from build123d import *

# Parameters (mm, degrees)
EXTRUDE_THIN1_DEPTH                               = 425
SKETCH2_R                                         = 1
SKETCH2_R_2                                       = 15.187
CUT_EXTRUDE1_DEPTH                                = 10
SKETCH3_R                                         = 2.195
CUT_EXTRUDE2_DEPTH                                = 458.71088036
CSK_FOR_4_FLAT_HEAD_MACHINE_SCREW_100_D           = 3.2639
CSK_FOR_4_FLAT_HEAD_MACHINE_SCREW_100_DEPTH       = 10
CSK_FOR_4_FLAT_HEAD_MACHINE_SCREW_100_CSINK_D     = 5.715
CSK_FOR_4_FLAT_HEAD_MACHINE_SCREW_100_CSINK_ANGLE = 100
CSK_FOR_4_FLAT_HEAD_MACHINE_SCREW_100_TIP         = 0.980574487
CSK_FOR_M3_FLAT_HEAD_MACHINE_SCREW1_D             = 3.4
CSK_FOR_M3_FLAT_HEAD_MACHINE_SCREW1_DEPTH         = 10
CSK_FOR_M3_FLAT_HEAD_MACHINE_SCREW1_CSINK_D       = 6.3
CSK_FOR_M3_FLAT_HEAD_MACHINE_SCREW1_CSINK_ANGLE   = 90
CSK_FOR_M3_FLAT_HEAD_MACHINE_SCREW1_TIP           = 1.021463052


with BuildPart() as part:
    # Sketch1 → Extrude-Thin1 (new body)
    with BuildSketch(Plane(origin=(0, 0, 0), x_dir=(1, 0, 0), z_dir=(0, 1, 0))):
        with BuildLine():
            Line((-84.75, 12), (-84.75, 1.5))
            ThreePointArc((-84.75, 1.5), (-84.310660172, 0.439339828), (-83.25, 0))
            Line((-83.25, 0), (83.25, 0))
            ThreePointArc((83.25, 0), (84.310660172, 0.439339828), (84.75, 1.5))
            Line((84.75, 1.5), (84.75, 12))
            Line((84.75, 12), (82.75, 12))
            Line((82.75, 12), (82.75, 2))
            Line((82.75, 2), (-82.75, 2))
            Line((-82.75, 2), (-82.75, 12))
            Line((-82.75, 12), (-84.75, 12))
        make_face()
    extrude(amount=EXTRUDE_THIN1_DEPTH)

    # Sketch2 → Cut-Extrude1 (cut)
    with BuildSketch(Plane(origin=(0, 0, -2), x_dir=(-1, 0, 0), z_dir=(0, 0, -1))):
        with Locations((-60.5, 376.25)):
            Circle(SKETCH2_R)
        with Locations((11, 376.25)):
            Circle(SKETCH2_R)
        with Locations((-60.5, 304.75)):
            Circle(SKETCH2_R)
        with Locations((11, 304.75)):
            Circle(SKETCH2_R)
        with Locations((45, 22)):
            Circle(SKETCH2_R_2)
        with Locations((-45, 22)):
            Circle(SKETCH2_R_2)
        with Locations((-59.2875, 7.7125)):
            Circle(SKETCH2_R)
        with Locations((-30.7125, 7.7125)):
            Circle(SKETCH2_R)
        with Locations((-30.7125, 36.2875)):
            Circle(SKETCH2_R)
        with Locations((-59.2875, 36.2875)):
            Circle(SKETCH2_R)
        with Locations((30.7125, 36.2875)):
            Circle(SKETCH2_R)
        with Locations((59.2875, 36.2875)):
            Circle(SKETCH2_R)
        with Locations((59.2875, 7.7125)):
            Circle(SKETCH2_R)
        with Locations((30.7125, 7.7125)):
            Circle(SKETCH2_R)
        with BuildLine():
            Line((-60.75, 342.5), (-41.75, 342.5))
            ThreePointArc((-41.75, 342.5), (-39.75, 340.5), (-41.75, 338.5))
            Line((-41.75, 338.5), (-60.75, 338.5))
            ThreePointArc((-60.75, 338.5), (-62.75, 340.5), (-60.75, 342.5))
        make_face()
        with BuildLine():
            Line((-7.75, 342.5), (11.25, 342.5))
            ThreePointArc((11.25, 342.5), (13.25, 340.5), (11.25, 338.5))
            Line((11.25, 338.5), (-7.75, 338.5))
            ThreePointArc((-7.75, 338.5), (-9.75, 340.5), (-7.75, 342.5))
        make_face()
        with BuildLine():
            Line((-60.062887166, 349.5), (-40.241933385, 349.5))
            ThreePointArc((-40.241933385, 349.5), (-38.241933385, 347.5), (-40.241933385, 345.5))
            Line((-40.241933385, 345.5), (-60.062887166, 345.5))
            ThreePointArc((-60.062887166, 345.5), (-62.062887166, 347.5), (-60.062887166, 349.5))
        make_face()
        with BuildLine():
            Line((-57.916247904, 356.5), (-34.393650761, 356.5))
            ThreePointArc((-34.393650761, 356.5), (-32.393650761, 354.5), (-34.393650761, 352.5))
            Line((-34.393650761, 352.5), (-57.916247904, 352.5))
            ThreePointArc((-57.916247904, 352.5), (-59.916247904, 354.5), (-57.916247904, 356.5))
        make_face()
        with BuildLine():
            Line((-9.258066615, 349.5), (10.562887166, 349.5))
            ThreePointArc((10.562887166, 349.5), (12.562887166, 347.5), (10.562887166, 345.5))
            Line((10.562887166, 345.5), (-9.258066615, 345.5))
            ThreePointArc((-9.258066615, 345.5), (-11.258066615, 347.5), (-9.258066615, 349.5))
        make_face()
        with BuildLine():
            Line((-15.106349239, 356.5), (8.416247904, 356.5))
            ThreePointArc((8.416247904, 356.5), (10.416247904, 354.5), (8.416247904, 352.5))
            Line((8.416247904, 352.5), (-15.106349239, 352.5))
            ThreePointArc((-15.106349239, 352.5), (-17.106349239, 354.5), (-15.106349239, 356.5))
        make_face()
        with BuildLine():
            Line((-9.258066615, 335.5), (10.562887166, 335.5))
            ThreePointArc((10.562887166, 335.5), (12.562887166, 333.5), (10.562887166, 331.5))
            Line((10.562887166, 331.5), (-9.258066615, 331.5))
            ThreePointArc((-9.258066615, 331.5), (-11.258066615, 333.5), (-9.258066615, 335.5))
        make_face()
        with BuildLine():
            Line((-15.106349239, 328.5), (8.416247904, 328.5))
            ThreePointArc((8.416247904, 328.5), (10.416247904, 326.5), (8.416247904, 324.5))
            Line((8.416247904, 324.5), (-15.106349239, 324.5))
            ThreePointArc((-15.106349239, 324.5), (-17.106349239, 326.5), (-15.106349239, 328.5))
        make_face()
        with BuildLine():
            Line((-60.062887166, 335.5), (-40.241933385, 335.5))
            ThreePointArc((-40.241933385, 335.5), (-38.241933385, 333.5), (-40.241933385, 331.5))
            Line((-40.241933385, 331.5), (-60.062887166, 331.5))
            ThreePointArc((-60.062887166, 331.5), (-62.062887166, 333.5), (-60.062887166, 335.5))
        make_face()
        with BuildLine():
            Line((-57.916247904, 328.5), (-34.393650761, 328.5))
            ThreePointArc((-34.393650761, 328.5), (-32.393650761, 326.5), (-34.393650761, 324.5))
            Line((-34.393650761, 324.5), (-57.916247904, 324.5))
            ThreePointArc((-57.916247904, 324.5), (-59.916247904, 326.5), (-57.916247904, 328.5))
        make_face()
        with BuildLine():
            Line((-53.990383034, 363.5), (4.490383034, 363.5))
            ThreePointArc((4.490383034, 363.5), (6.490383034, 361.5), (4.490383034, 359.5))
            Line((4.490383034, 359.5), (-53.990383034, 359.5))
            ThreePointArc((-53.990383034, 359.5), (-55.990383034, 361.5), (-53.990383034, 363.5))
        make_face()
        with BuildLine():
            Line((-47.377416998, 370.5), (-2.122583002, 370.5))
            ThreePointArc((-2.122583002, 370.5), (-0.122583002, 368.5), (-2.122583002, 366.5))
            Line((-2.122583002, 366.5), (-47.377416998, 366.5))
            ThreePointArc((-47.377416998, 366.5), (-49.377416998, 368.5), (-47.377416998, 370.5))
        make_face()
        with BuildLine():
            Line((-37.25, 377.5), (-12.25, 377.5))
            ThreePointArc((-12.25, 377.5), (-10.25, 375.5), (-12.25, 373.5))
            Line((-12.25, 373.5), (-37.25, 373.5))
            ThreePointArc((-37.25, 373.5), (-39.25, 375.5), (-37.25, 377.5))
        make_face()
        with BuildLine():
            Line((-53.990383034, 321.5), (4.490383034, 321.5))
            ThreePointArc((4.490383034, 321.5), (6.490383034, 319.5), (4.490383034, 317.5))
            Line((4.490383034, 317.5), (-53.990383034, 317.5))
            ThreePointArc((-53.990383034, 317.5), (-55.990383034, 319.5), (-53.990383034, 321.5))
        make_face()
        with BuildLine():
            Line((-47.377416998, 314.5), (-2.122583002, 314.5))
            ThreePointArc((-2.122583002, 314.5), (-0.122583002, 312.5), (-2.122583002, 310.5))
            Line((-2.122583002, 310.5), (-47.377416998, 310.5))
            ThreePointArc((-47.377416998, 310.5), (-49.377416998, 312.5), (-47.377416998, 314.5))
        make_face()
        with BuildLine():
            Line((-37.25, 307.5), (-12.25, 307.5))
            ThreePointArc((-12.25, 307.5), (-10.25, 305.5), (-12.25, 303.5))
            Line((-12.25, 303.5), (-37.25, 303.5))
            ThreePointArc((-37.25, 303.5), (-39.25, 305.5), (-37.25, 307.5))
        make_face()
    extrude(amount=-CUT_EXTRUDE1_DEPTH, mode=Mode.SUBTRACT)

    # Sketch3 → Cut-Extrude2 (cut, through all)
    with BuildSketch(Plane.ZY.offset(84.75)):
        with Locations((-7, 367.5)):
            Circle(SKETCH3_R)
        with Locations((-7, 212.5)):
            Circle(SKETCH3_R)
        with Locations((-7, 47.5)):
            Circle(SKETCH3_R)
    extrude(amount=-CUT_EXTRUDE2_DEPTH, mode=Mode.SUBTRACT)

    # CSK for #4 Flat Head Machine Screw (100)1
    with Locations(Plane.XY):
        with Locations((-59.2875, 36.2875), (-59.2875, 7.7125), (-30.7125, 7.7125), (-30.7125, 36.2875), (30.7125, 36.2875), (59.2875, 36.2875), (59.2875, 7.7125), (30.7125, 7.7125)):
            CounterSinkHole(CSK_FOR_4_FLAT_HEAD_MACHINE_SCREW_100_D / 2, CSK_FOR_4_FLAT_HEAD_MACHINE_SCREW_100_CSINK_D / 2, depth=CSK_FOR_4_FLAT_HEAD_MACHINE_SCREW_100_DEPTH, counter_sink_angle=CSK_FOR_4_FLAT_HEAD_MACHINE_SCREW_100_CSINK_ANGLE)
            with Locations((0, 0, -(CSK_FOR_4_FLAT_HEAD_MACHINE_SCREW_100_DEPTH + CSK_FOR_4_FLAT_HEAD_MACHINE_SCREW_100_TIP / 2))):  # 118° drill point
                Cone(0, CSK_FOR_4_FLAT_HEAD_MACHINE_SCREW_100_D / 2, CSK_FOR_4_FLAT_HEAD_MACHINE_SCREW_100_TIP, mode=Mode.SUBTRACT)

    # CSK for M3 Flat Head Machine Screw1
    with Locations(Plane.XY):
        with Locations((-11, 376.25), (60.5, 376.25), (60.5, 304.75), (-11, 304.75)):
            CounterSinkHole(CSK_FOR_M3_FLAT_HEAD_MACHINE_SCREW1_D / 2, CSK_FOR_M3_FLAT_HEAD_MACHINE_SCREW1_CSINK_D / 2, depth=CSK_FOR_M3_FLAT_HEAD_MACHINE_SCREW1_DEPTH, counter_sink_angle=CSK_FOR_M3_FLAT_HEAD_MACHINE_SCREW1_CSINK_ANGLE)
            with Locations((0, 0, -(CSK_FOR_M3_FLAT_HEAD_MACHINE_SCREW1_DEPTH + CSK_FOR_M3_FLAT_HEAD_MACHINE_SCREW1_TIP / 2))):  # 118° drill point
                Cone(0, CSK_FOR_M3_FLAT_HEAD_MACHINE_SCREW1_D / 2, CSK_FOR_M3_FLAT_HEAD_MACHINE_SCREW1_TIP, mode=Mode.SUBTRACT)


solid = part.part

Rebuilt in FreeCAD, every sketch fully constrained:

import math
import FreeCAD as App
import Part
import Sketcher

doc = App.newDocument("Part")
body = doc.addObject("PartDesign::Body", "Body")

# Sketch on XZ plane
sketch1 = body.newObject("Sketcher::SketchObject", "Sketch")
sketch1.AttachmentSupport = (doc.getObject("XZ_Plane"), [""])
sketch1.MapMode = "FlatFace"
sketch1.addGeometry([
    Part.LineSegment(App.Vector(-84.8, -12, 0), App.Vector(-84.8, -1.5, 0)),  # 0
    Part.ArcOfCircle(Part.Circle(App.Vector(-83.3, -1.5, 0), App.Vector(0, 0, 1), 1.5), math.radians(90), math.radians(180)),  # 1
    Part.LineSegment(App.Vector(-83.2, 0, 0), App.Vector(83.2, 0, 0)),  # 2
    Part.ArcOfCircle(Part.Circle(App.Vector(83.3, -1.5, 0), App.Vector(0, 0, 1), 1.5), math.radians(0), math.radians(90)),  # 3
    Part.LineSegment(App.Vector(84.8, -1.5, 0), App.Vector(84.8, -12, 0)),  # 4
    Part.LineSegment(App.Vector(84.8, -12, 0), App.Vector(82.8, -12, 0)),  # 5
    Part.LineSegment(App.Vector(82.8, -12, 0), App.Vector(82.8, -2, 0)),  # 6
    Part.LineSegment(App.Vector(82.8, -2, 0), App.Vector(-82.8, -2, 0)),  # 7
    Part.LineSegment(App.Vector(-82.8, -2, 0), App.Vector(-82.8, -12, 0)),  # 8
    Part.LineSegment(App.Vector(-82.8, -12, 0), App.Vector(-84.8, -12, 0)),  # 9
], False)
sketch1.addConstraint([
    Sketcher.Constraint("Tangent", 0, 2, 1, 2),
    Sketcher.Constraint("Tangent", 1, 1, 2, 1),
    Sketcher.Constraint("Tangent", 2, 2, 3, 2),
    Sketcher.Constraint("Tangent", 3, 1, 4, 1),
    Sketcher.Constraint("Coincident", 4, 2, 5, 1),
    Sketcher.Constraint("Coincident", 5, 2, 6, 1),
    Sketcher.Constraint("Coincident", 6, 2, 7, 1),
    Sketcher.Constraint("Coincident", 7, 2, 8, 1),
    Sketcher.Constraint("Coincident", 8, 2, 9, 1),
    Sketcher.Constraint("Coincident", 9, 2, 0, 1),
    Sketcher.Constraint("Vertical", 0),
    Sketcher.Constraint("Horizontal", 2),
    Sketcher.Constraint("Vertical", 4),
    Sketcher.Constraint("Horizontal", 5),
    Sketcher.Constraint("Vertical", 6),
    Sketcher.Constraint("Horizontal", 7),
    Sketcher.Constraint("Vertical", 8),
    Sketcher.Constraint("Horizontal", 9),
    Sketcher.Constraint("Equal", 1, 3),
    Sketcher.Constraint("Symmetric", 1, 1, 2, 2, -1, 1),
    Sketcher.Constraint("Symmetric", 5, 2, 8, 2, -2),
    Sketcher.Constraint("Radius", 1, 1.5),
    Sketcher.Constraint("DistanceX", 5, 2, 5, 1, 2.0),
    Sketcher.Constraint("DistanceY", 6, 1, 6, 2, 10.0),
    Sketcher.Constraint("DistanceX", 2, 1, 2, 2, 166.5),
    Sketcher.Constraint("DistanceY", 0, 1, 0, 2, 10.5),
])
pad1 = body.newObject("PartDesign::Pad", "Pad")
pad1.Profile = sketch1
pad1.Length = 425
pad1.Reversed = True

# Sketch on XY plane
sketch2 = body.newObject("Sketcher::SketchObject", "Sketch001")
sketch2.AttachmentSupport = (doc.getObject("XY_Plane"), [""])
sketch2.MapMode = "FlatFace"
sketch2.AttachmentOffset = App.Placement(App.Vector(0, 0, -2), App.Rotation())
sketch2.addGeometry([
    Part.Circle(App.Vector(60.5, 376.2, 0), App.Vector(0, 0, 1), 1),  # 0
    Part.Circle(App.Vector(-11, 376.2, 0), App.Vector(0, 0, 1), 1),  # 1
    Part.Circle(App.Vector(60.5, 304.8, 0), App.Vector(0, 0, 1), 1),  # 2
    Part.Circle(App.Vector(-11, 304.8, 0), App.Vector(0, 0, 1), 1),  # 3
    Part.Circle(App.Vector(-45, 22, 0), App.Vector(0, 0, 1), 15.2),  # 4
    Part.Circle(App.Vector(45, 22, 0), App.Vector(0, 0, 1), 15.2),  # 5
    Part.Circle(App.Vector(59.3, 7.7, 0), App.Vector(0, 0, 1), 1),  # 6
    Part.Circle(App.Vector(30.7, 7.7, 0), App.Vector(0, 0, 1), 1),  # 7
    Part.Circle(App.Vector(30.7, 36.3, 0), App.Vector(0, 0, 1), 1),  # 8
    Part.Circle(App.Vector(59.3, 36.3, 0), App.Vector(0, 0, 1), 1),  # 9
    Part.Circle(App.Vector(-30.7, 36.3, 0), App.Vector(0, 0, 1), 1),  # 10
    Part.Circle(App.Vector(-59.3, 36.3, 0), App.Vector(0, 0, 1), 1),  # 11
    Part.Circle(App.Vector(-59.3, 7.7, 0), App.Vector(0, 0, 1), 1),  # 12
    Part.Circle(App.Vector(-30.7, 7.7, 0), App.Vector(0, 0, 1), 1),  # 13
    Part.LineSegment(App.Vector(41.8, 342.5, 0), App.Vector(60.8, 342.5, 0)),  # 14
    Part.ArcOfCircle(Part.Circle(App.Vector(60.8, 340.5, 0), App.Vector(0, 0, 1), 2), math.radians(-90), math.radians(90)),  # 15
    Part.LineSegment(App.Vector(60.8, 338.5, 0), App.Vector(41.8, 338.5, 0)),  # 16
    Part.ArcOfCircle(Part.Circle(App.Vector(41.8, 340.5, 0), App.Vector(0, 0, 1), 2), math.radians(90), math.radians(270)),  # 17
    Part.LineSegment(App.Vector(-11.2, 342.5, 0), App.Vector(7.8, 342.5, 0)),  # 18
    Part.ArcOfCircle(Part.Circle(App.Vector(7.8, 340.5, 0), App.Vector(0, 0, 1), 2), math.radians(-90), math.radians(90)),  # 19
    Part.LineSegment(App.Vector(7.8, 338.5, 0), App.Vector(-11.2, 338.5, 0)),  # 20
    Part.ArcOfCircle(Part.Circle(App.Vector(-11.2, 340.5, 0), App.Vector(0, 0, 1), 2), math.radians(90), math.radians(270)),  # 21
    Part.LineSegment(App.Vector(40.2, 349.5, 0), App.Vector(60.1, 349.5, 0)),  # 22
    Part.ArcOfCircle(Part.Circle(App.Vector(60.1, 347.5, 0), App.Vector(0, 0, 1), 2), math.radians(-90), math.radians(90)),  # 23
    Part.LineSegment(App.Vector(60.1, 345.5, 0), App.Vector(40.2, 345.5, 0)),  # 24
    Part.ArcOfCircle(Part.Circle(App.Vector(40.2, 347.5, 0), App.Vector(0, 0, 1), 2), math.radians(90), math.radians(270)),  # 25
    Part.LineSegment(App.Vector(34.4, 356.5, 0), App.Vector(57.9, 356.5, 0)),  # 26
    Part.ArcOfCircle(Part.Circle(App.Vector(57.9, 354.5, 0), App.Vector(0, 0, 1), 2), math.radians(-90), math.radians(90)),  # 27
    Part.LineSegment(App.Vector(57.9, 352.5, 0), App.Vector(34.4, 352.5, 0)),  # 28
    Part.ArcOfCircle(Part.Circle(App.Vector(34.4, 354.5, 0), App.Vector(0, 0, 1), 2), math.radians(90), math.radians(270)),  # 29
    Part.LineSegment(App.Vector(-10.6, 349.5, 0), App.Vector(9.3, 349.5, 0)),  # 30
    Part.ArcOfCircle(Part.Circle(App.Vector(9.3, 347.5, 0), App.Vector(0, 0, 1), 2), math.radians(-90), math.radians(90)),  # 31
    Part.LineSegment(App.Vector(9.3, 345.5, 0), App.Vector(-10.6, 345.5, 0)),  # 32
    Part.ArcOfCircle(Part.Circle(App.Vector(-10.6, 347.5, 0), App.Vector(0, 0, 1), 2), math.radians(90), math.radians(270)),  # 33
    Part.LineSegment(App.Vector(-8.4, 356.5, 0), App.Vector(15.1, 356.5, 0)),  # 34
    Part.ArcOfCircle(Part.Circle(App.Vector(15.1, 354.5, 0), App.Vector(0, 0, 1), 2), math.radians(-90), math.radians(90)),  # 35
    Part.LineSegment(App.Vector(15.1, 352.5, 0), App.Vector(-8.4, 352.5, 0)),  # 36
    Part.ArcOfCircle(Part.Circle(App.Vector(-8.4, 354.5, 0), App.Vector(0, 0, 1), 2), math.radians(90), math.radians(270)),  # 37
    Part.LineSegment(App.Vector(-10.6, 335.5, 0), App.Vector(9.3, 335.5, 0)),  # 38
    Part.ArcOfCircle(Part.Circle(App.Vector(9.3, 333.5, 0), App.Vector(0, 0, 1), 2), math.radians(-90), math.radians(90)),  # 39
    Part.LineSegment(App.Vector(9.3, 331.5, 0), App.Vector(-10.6, 331.5, 0)),  # 40
    Part.ArcOfCircle(Part.Circle(App.Vector(-10.6, 333.5, 0), App.Vector(0, 0, 1), 2), math.radians(90), math.radians(270)),  # 41
    Part.LineSegment(App.Vector(-8.4, 328.5, 0), App.Vector(15.1, 328.5, 0)),  # 42
    Part.ArcOfCircle(Part.Circle(App.Vector(15.1, 326.5, 0), App.Vector(0, 0, 1), 2), math.radians(-90), math.radians(90)),  # 43
    Part.LineSegment(App.Vector(15.1, 324.5, 0), App.Vector(-8.4, 324.5, 0)),  # 44
    Part.ArcOfCircle(Part.Circle(App.Vector(-8.4, 326.5, 0), App.Vector(0, 0, 1), 2), math.radians(90), math.radians(270)),  # 45
    Part.LineSegment(App.Vector(40.2, 335.5, 0), App.Vector(60.1, 335.5, 0)),  # 46
    Part.ArcOfCircle(Part.Circle(App.Vector(60.1, 333.5, 0), App.Vector(0, 0, 1), 2), math.radians(-90), math.radians(90)),  # 47
    Part.LineSegment(App.Vector(60.1, 331.5, 0), App.Vector(40.2, 331.5, 0)),  # 48
    Part.ArcOfCircle(Part.Circle(App.Vector(40.2, 333.5, 0), App.Vector(0, 0, 1), 2), math.radians(90), math.radians(270)),  # 49
    Part.LineSegment(App.Vector(34.4, 328.5, 0), App.Vector(57.9, 328.5, 0)),  # 50
    Part.ArcOfCircle(Part.Circle(App.Vector(57.9, 326.5, 0), App.Vector(0, 0, 1), 2), math.radians(-90), math.radians(90)),  # 51
    Part.LineSegment(App.Vector(57.9, 324.5, 0), App.Vector(34.4, 324.5, 0)),  # 52
    Part.ArcOfCircle(Part.Circle(App.Vector(34.4, 326.5, 0), App.Vector(0, 0, 1), 2), math.radians(90), math.radians(270)),  # 53
    Part.LineSegment(App.Vector(-4.5, 363.5, 0), App.Vector(54, 363.5, 0)),  # 54
    Part.ArcOfCircle(Part.Circle(App.Vector(54, 361.5, 0), App.Vector(0, 0, 1), 2), math.radians(-90), math.radians(90)),  # 55
    Part.LineSegment(App.Vector(54, 359.5, 0), App.Vector(-4.5, 359.5, 0)),  # 56
    Part.ArcOfCircle(Part.Circle(App.Vector(-4.5, 361.5, 0), App.Vector(0, 0, 1), 2), math.radians(90), math.radians(270)),  # 57
    Part.LineSegment(App.Vector(2.1, 370.5, 0), App.Vector(47.4, 370.5, 0)),  # 58
    Part.ArcOfCircle(Part.Circle(App.Vector(47.4, 368.5, 0), App.Vector(0, 0, 1), 2), math.radians(-90), math.radians(90)),  # 59
    Part.LineSegment(App.Vector(47.4, 366.5, 0), App.Vector(2.1, 366.5, 0)),  # 60
    Part.ArcOfCircle(Part.Circle(App.Vector(2.1, 368.5, 0), App.Vector(0, 0, 1), 2), math.radians(90), math.radians(270)),  # 61
    Part.LineSegment(App.Vector(12.2, 377.5, 0), App.Vector(37.2, 377.5, 0)),  # 62
    Part.ArcOfCircle(Part.Circle(App.Vector(37.2, 375.5, 0), App.Vector(0, 0, 1), 2), math.radians(-90), math.radians(90)),  # 63
    Part.LineSegment(App.Vector(37.2, 373.5, 0), App.Vector(12.2, 373.5, 0)),  # 64
    Part.ArcOfCircle(Part.Circle(App.Vector(12.2, 375.5, 0), App.Vector(0, 0, 1), 2), math.radians(90), math.radians(270)),  # 65
    Part.LineSegment(App.Vector(-4.5, 321.5, 0), App.Vector(54, 321.5, 0)),  # 66
    Part.ArcOfCircle(Part.Circle(App.Vector(54, 319.5, 0), App.Vector(0, 0, 1), 2), math.radians(-90), math.radians(90)),  # 67
    Part.LineSegment(App.Vector(54, 317.5, 0), App.Vector(-4.5, 317.5, 0)),  # 68
    Part.ArcOfCircle(Part.Circle(App.Vector(-4.5, 319.5, 0), App.Vector(0, 0, 1), 2), math.radians(90), math.radians(270)),  # 69
    Part.LineSegment(App.Vector(2.1, 314.5, 0), App.Vector(47.4, 314.5, 0)),  # 70
    Part.ArcOfCircle(Part.Circle(App.Vector(47.4, 312.5, 0), App.Vector(0, 0, 1), 2), math.radians(-90), math.radians(90)),  # 71
    Part.LineSegment(App.Vector(47.4, 310.5, 0), App.Vector(2.1, 310.5, 0)),  # 72
    Part.ArcOfCircle(Part.Circle(App.Vector(2.1, 312.5, 0), App.Vector(0, 0, 1), 2), math.radians(90), math.radians(270)),  # 73
    Part.LineSegment(App.Vector(12.2, 307.5, 0), App.Vector(37.2, 307.5, 0)),  # 74
    Part.ArcOfCircle(Part.Circle(App.Vector(37.2, 305.5, 0), App.Vector(0, 0, 1), 2), math.radians(-90), math.radians(90)),  # 75
    Part.LineSegment(App.Vector(37.2, 303.5, 0), App.Vector(12.2, 303.5, 0)),  # 76
    Part.ArcOfCircle(Part.Circle(App.Vector(12.2, 305.5, 0), App.Vector(0, 0, 1), 2), math.radians(90), math.radians(270)),  # 77
], False)
sketch2.addConstraint([
    Sketcher.Constraint("Tangent", 14, 2, 15, 2),
    Sketcher.Constraint("Tangent", 15, 1, 16, 1),
    Sketcher.Constraint("Tangent", 16, 2, 17, 2),
    Sketcher.Constraint("Tangent", 17, 1, 14, 1),
    Sketcher.Constraint("Tangent", 18, 2, 19, 2),
    Sketcher.Constraint("Tangent", 19, 1, 20, 1),
    Sketcher.Constraint("Tangent", 20, 2, 21, 2),
    Sketcher.Constraint("Tangent", 21, 1, 18, 1),
    Sketcher.Constraint("Tangent", 22, 2, 23, 2),
    Sketcher.Constraint("Tangent", 23, 1, 24, 1),
    Sketcher.Constraint("Tangent", 24, 2, 25, 2),
    Sketcher.Constraint("Tangent", 25, 1, 22, 1),
    Sketcher.Constraint("Tangent", 26, 2, 27, 2),
    Sketcher.Constraint("Tangent", 27, 1, 28, 1),
    Sketcher.Constraint("Tangent", 28, 2, 29, 2),
    Sketcher.Constraint("Tangent", 29, 1, 26, 1),
    Sketcher.Constraint("Tangent", 30, 2, 31, 2),
    Sketcher.Constraint("Tangent", 31, 1, 32, 1),
    Sketcher.Constraint("Tangent", 32, 2, 33, 2),
    Sketcher.Constraint("Tangent", 33, 1, 30, 1),
    Sketcher.Constraint("Tangent", 34, 2, 35, 2),
    Sketcher.Constraint("Tangent", 35, 1, 36, 1),
    Sketcher.Constraint("Tangent", 36, 2, 37, 2),
    Sketcher.Constraint("Tangent", 37, 1, 34, 1),
    Sketcher.Constraint("Tangent", 38, 2, 39, 2),
    Sketcher.Constraint("Tangent", 39, 1, 40, 1),
    Sketcher.Constraint("Tangent", 40, 2, 41, 2),
    Sketcher.Constraint("Tangent", 41, 1, 38, 1),
    Sketcher.Constraint("Tangent", 42, 2, 43, 2),
    Sketcher.Constraint("Tangent", 43, 1, 44, 1),
    Sketcher.Constraint("Tangent", 44, 2, 45, 2),
    Sketcher.Constraint("Tangent", 45, 1, 42, 1),
    Sketcher.Constraint("Tangent", 46, 2, 47, 2),
    Sketcher.Constraint("Tangent", 47, 1, 48, 1),
    Sketcher.Constraint("Tangent", 48, 2, 49, 2),
    Sketcher.Constraint("Tangent", 49, 1, 46, 1),
    Sketcher.Constraint("Tangent", 50, 2, 51, 2),
    Sketcher.Constraint("Tangent", 51, 1, 52, 1),
    Sketcher.Constraint("Tangent", 52, 2, 53, 2),
    Sketcher.Constraint("Tangent", 53, 1, 50, 1),
    Sketcher.Constraint("Tangent", 54, 2, 55, 2),
    Sketcher.Constraint("Tangent", 55, 1, 56, 1),
    Sketcher.Constraint("Tangent", 56, 2, 57, 2),
    Sketcher.Constraint("Tangent", 57, 1, 54, 1),
    Sketcher.Constraint("Tangent", 58, 2, 59, 2),
    Sketcher.Constraint("Tangent", 59, 1, 60, 1),
    Sketcher.Constraint("Tangent", 60, 2, 61, 2),
    Sketcher.Constraint("Tangent", 61, 1, 58, 1),
    Sketcher.Constraint("Tangent", 62, 2, 63, 2),
    Sketcher.Constraint("Tangent", 63, 1, 64, 1),
    Sketcher.Constraint("Tangent", 64, 2, 65, 2),
    Sketcher.Constraint("Tangent", 65, 1, 62, 1),
    Sketcher.Constraint("Tangent", 66, 2, 67, 2),
    Sketcher.Constraint("Tangent", 67, 1, 68, 1),
    Sketcher.Constraint("Tangent", 68, 2, 69, 2),
    Sketcher.Constraint("Tangent", 69, 1, 66, 1),
    Sketcher.Constraint("Tangent", 70, 2, 71, 2),
    Sketcher.Constraint("Tangent", 71, 1, 72, 1),
    Sketcher.Constraint("Tangent", 72, 2, 73, 2),
    Sketcher.Constraint("Tangent", 73, 1, 70, 1),
    Sketcher.Constraint("Tangent", 74, 2, 75, 2),
    Sketcher.Constraint("Tangent", 75, 1, 76, 1),
    Sketcher.Constraint("Tangent", 76, 2, 77, 2),
    Sketcher.Constraint("Tangent", 77, 1, 74, 1),
    Sketcher.Constraint("Horizontal", 14),
    Sketcher.Constraint("Horizontal", 16),
    Sketcher.Constraint("Horizontal", 18),
    Sketcher.Constraint("Horizontal", 20),
    Sketcher.Constraint("Horizontal", 22),
    Sketcher.Constraint("Horizontal", 24),
    Sketcher.Constraint("Horizontal", 26),
    Sketcher.Constraint("Horizontal", 28),
    Sketcher.Constraint("Horizontal", 30),
    Sketcher.Constraint("Horizontal", 32),
    Sketcher.Constraint("Horizontal", 34),
    Sketcher.Constraint("Horizontal", 36),
    Sketcher.Constraint("Horizontal", 38),
    Sketcher.Constraint("Horizontal", 40),
    Sketcher.Constraint("Horizontal", 42),
    Sketcher.Constraint("Horizontal", 44),
    Sketcher.Constraint("Horizontal", 46),
    Sketcher.Constraint("Horizontal", 48),
    Sketcher.Constraint("Horizontal", 50),
    Sketcher.Constraint("Horizontal", 52),
    Sketcher.Constraint("Horizontal", 54),
    Sketcher.Constraint("Horizontal", 56),
    Sketcher.Constraint("Horizontal", 58),
    Sketcher.Constraint("Horizontal", 60),
    Sketcher.Constraint("Horizontal", 62),
    Sketcher.Constraint("Horizontal", 64),
    Sketcher.Constraint("Horizontal", 66),
    Sketcher.Constraint("Horizontal", 68),
    Sketcher.Constraint("Horizontal", 70),
    Sketcher.Constraint("Horizontal", 72),
    Sketcher.Constraint("Horizontal", 74),
    Sketcher.Constraint("Horizontal", 76),
    Sketcher.Constraint("Equal", 0, 1),
    Sketcher.Constraint("Equal", 1, 2),
    Sketcher.Constraint("Equal", 2, 3),
    Sketcher.Constraint("Equal", 4, 5),
    Sketcher.Constraint("Equal", 3, 6),
    Sketcher.Constraint("Equal", 6, 7),
    Sketcher.Constraint("Equal", 7, 8),
    Sketcher.Constraint("Equal", 8, 9),
    Sketcher.Constraint("Equal", 9, 10),
    Sketcher.Constraint("Equal", 10, 11),
    Sketcher.Constraint("Equal", 11, 12),
    Sketcher.Constraint("Equal", 12, 13),
    Sketcher.Constraint("Equal", 17, 19),
    Sketcher.Constraint("Equal", 21, 23),
    Sketcher.Constraint("Equal", 25, 27),
    Sketcher.Constraint("Equal", 29, 31),
    Sketcher.Constraint("Equal", 33, 35),
    Sketcher.Constraint("Equal", 37, 39),
    Sketcher.Constraint("Equal", 41, 43),
    Sketcher.Constraint("Equal", 45, 47),
    Sketcher.Constraint("Equal", 49, 51),
    Sketcher.Constraint("Equal", 53, 55),
    Sketcher.Constraint("Equal", 57, 59),
    Sketcher.Constraint("Equal", 61, 63),
    Sketcher.Constraint("Equal", 65, 67),
    Sketcher.Constraint("Equal", 69, 71),
    Sketcher.Constraint("Equal", 73, 75),
    Sketcher.Constraint("Symmetric", 4, 3, 5, 3, -2),
    Sketcher.Constraint("Symmetric", 8, 3, 10, 3, -2),
    Sketcher.Constraint("Symmetric", 9, 3, 11, 3, -2),
    Sketcher.Constraint("Symmetric", 6, 3, 12, 3, -2),
    Sketcher.Constraint("Symmetric", 7, 3, 13, 3, -2),
    Sketcher.Constraint("Horizontal", 0, 3, 1, 3),
    Sketcher.Constraint("Horizontal", 2, 3, 3, 3),
    Sketcher.Constraint("Horizontal", 6, 3, 7, 3),
    Sketcher.Constraint("Horizontal", 8, 3, 9, 3),
    Sketcher.Constraint("Horizontal", 17, 3, 19, 3),
    Sketcher.Constraint("Horizontal", 25, 3, 31, 3),
    Sketcher.Constraint("Horizontal", 29, 3, 35, 3),
    Sketcher.Constraint("Horizontal", 41, 3, 47, 3),
    Sketcher.Constraint("Horizontal", 45, 3, 51, 3),
    Sketcher.Constraint("Vertical", 0, 3, 2, 3),
    Sketcher.Constraint("Vertical", 1, 3, 3, 3),
    Sketcher.Constraint("Vertical", 7, 3, 8, 3),
    Sketcher.Constraint("Vertical", 6, 3, 9, 3),
    Sketcher.Constraint("Vertical", 31, 3, 39, 3),
    Sketcher.Constraint("Vertical", 33, 3, 41, 3),
    Sketcher.Constraint("Vertical", 35, 3, 43, 3),
    Sketcher.Constraint("Vertical", 37, 3, 45, 3),
    Sketcher.Constraint("Vertical", 23, 3, 47, 3),
    Sketcher.Constraint("Vertical", 25, 3, 49, 3),
    Sketcher.Constraint("Vertical", 27, 3, 51, 3),
    Sketcher.Constraint("Vertical", 29, 3, 53, 3),
    Sketcher.Constraint("Vertical", 55, 3, 67, 3),
    Sketcher.Constraint("Vertical", 57, 3, 69, 3),
    Sketcher.Constraint("Vertical", 59, 3, 71, 3),
    Sketcher.Constraint("Vertical", 61, 3, 73, 3),
    Sketcher.Constraint("Vertical", 63, 3, 75, 3),
    Sketcher.Constraint("Vertical", 65, 3, 77, 3),
    Sketcher.Constraint("Equal", 16, 18),
    Sketcher.Constraint("Equal", 24, 30),
    Sketcher.Constraint("Equal", 28, 34),
    Sketcher.Constraint("Diameter", 0, 2.0),
    Sketcher.Constraint("Radius", 15, 2.0),
    Sketcher.Constraint("DistanceX", 14, 1, 14, 2, 19.0),
    Sketcher.Constraint("DistanceX", 62, 1, 62, 2, 25.0),
    Sketcher.Constraint("Diameter", 4, 30.374),
    Sketcher.Constraint("DistanceX", 1, 3, -1, 1, 11.0),
    Sketcher.Constraint("DistanceX", 4, 3, -1, 1, 45.0),
    Sketcher.Constraint("DistanceY", -1, 1, 4, 3, 22.0),
    Sketcher.Constraint("DistanceX", -1, 1, 0, 3, 60.5),
    Sketcher.Constraint("DistanceY", -1, 1, 15, 3, 340.5),
    Sketcher.Constraint("DistanceY", -1, 1, 23, 3, 347.5),
    Sketcher.Constraint("DistanceY", -1, 1, 27, 3, 354.5),
    Sketcher.Constraint("DistanceY", -1, 1, 39, 3, 333.5),
    Sketcher.Constraint("DistanceY", -1, 1, 43, 3, 326.5),
    Sketcher.Constraint("DistanceY", -1, 1, 55, 3, 361.5),
    Sketcher.Constraint("DistanceY", -1, 1, 59, 3, 368.5),
    Sketcher.Constraint("DistanceY", -1, 1, 63, 3, 375.5),
    Sketcher.Constraint("DistanceY", -1, 1, 67, 3, 319.5),
    Sketcher.Constraint("DistanceY", -1, 1, 71, 3, 312.5),
    Sketcher.Constraint("DistanceY", -1, 1, 75, 3, 305.5),
    Sketcher.Constraint("DistanceY", -1, 1, 0, 3, 376.25),
    Sketcher.Constraint("DistanceY", -1, 1, 2, 3, 304.75),
    Sketcher.Constraint("DistanceX", -1, 1, 15, 3, 60.75),
    Sketcher.Constraint("DistanceX", -1, 1, 19, 3, 7.75),
    Sketcher.Constraint("DistanceX", -1, 1, 63, 3, 37.25),
    Sketcher.Constraint("DistanceX", -1, 1, 6, 3, 59.2875),
    Sketcher.Constraint("DistanceY", -1, 1, 6, 3, 7.7125),
    Sketcher.Constraint("DistanceX", -1, 1, 7, 3, 30.7125),
    Sketcher.Constraint("DistanceY", -1, 1, 8, 3, 36.2875),
    Sketcher.Constraint("DistanceX", 22, 1, 22, 2, 19.820954),
    Sketcher.Constraint("DistanceX", 26, 1, 26, 2, 23.522597),
    Sketcher.Constraint("DistanceX", 54, 1, 54, 2, 58.480766),
    Sketcher.Constraint("DistanceX", 58, 1, 58, 2, 45.254834),
    Sketcher.Constraint("DistanceX", -1, 1, 29, 3, 34.393651),
    Sketcher.Constraint("DistanceX", -1, 1, 35, 3, 15.106349),
    Sketcher.Constraint("DistanceX", -1, 1, 23, 3, 60.062887),
    Sketcher.Constraint("DistanceX", -1, 1, 31, 3, 9.258067),
    Sketcher.Constraint("DistanceX", -1, 1, 55, 3, 53.990383),
    Sketcher.Constraint("DistanceX", -1, 1, 59, 3, 47.377417),
])
pocket1 = body.newObject("PartDesign::Pocket", "Pocket")
pocket1.Profile = sketch2
pocket1.Length = 10
pocket1.Reversed = True

# Sketch on YZ plane
sketch3 = body.newObject("Sketcher::SketchObject", "Sketch002")
sketch3.AttachmentSupport = (doc.getObject("YZ_Plane"), [""])
sketch3.MapMode = "FlatFace"
sketch3.AttachmentOffset = App.Placement(App.Vector(0, 0, -84.75), App.Rotation())
sketch3.addGeometry([
    Part.Circle(App.Vector(367.5, -7, 0), App.Vector(0, 0, 1), 2.2),
    Part.Circle(App.Vector(212.5, -7, 0), App.Vector(0, 0, 1), 2.2),
    Part.Circle(App.Vector(47.5, -7, 0), App.Vector(0, 0, 1), 2.2),
], False)
sketch3.addConstraint([
    Sketcher.Constraint("Equal", 0, 1),
    Sketcher.Constraint("Equal", 1, 2),
    Sketcher.Constraint("Horizontal", 0, 3, 1, 3),
    Sketcher.Constraint("Horizontal", 1, 3, 2, 3),
    Sketcher.Constraint("Diameter", 0, 4.39),
    Sketcher.Constraint("DistanceY", 0, 3, -1, 1, 7.0),
    Sketcher.Constraint("DistanceX", 1, 3, 0, 3, 155.0),
    Sketcher.Constraint("DistanceX", 2, 3, 1, 3, 165.0),
    Sketcher.Constraint("DistanceX", -1, 1, 0, 3, 367.5),
])
pocket2 = body.newObject("PartDesign::Pocket", "Pocket001")
pocket2.Profile = sketch3
pocket2.Type = "ThroughAll"
pocket2.Reversed = True

# Sketch on XY plane
sketch4 = body.newObject("Sketcher::SketchObject", "Sketch003")
sketch4.AttachmentSupport = (doc.getObject("XY_Plane"), [""])
sketch4.MapMode = "FlatFace"
sketch4.addGeometry([
    Part.Circle(App.Vector(-59.3, 36.3, 0), App.Vector(0, 0, 1), 1.6),  # 0
    Part.Circle(App.Vector(-59.3, 7.7, 0), App.Vector(0, 0, 1), 1.6),  # 1
    Part.Circle(App.Vector(-30.7, 7.7, 0), App.Vector(0, 0, 1), 1.6),  # 2
    Part.Circle(App.Vector(-30.7, 36.3, 0), App.Vector(0, 0, 1), 1.6),  # 3
    Part.Circle(App.Vector(30.7, 36.3, 0), App.Vector(0, 0, 1), 1.6),  # 4
    Part.Circle(App.Vector(59.3, 36.3, 0), App.Vector(0, 0, 1), 1.6),  # 5
    Part.Circle(App.Vector(59.3, 7.7, 0), App.Vector(0, 0, 1), 1.6),  # 6
    Part.Circle(App.Vector(30.7, 7.7, 0), App.Vector(0, 0, 1), 1.6),  # 7
], False)
sketch4.addConstraint([
    Sketcher.Constraint("Equal", 0, 1),
    Sketcher.Constraint("Equal", 1, 2),
    Sketcher.Constraint("Equal", 2, 3),
    Sketcher.Constraint("Equal", 3, 4),
    Sketcher.Constraint("Equal", 4, 5),
    Sketcher.Constraint("Equal", 5, 6),
    Sketcher.Constraint("Equal", 6, 7),
    Sketcher.Constraint("Symmetric", 3, 3, 4, 3, -2),
    Sketcher.Constraint("Symmetric", 0, 3, 5, 3, -2),
    Sketcher.Constraint("Symmetric", 1, 3, 6, 3, -2),
    Sketcher.Constraint("Symmetric", 2, 3, 7, 3, -2),
    Sketcher.Constraint("Horizontal", 1, 3, 2, 3),
    Sketcher.Constraint("Horizontal", 0, 3, 3, 3),
    Sketcher.Constraint("Vertical", 0, 3, 1, 3),
    Sketcher.Constraint("Vertical", 2, 3, 3, 3),
    Sketcher.Constraint("DistanceX", 0, 3, 4, 3, 90.0),
    Sketcher.Constraint("Diameter", 0, 3.2639),
    Sketcher.Constraint("DistanceY", 1, 3, 0, 3, 28.575),
    Sketcher.Constraint("DistanceX", 1, 3, 2, 3, 28.575),
    Sketcher.Constraint("DistanceY", -1, 1, 0, 3, 36.2875),
])
doc.recompute()
hole = body.newObject("PartDesign::Hole", "Hole")
hole.Profile = sketch4
hole.ThreadType = "None"
hole.Diameter = 3.2639
hole.DepthType = "Dimension"
hole.Depth = 10
hole.DrillPoint = "Angled"
hole.DrillPointAngle = 118
hole.HoleCutType = "Countersink"
hole.HoleCutDiameter = 5.715
hole.HoleCutCountersinkAngle = 100

# Sketch on XY plane
sketch5 = body.newObject("Sketcher::SketchObject", "Sketch004")
sketch5.AttachmentSupport = (doc.getObject("XY_Plane"), [""])
sketch5.MapMode = "FlatFace"
sketch5.addGeometry([
    Part.Circle(App.Vector(-11, 376.2, 0), App.Vector(0, 0, 1), 1.7),
    Part.Circle(App.Vector(60.5, 376.2, 0), App.Vector(0, 0, 1), 1.7),
    Part.Circle(App.Vector(60.5, 304.8, 0), App.Vector(0, 0, 1), 1.7),
    Part.Circle(App.Vector(-11, 304.8, 0), App.Vector(0, 0, 1), 1.7),
], False)
sketch5.addConstraint([
    Sketcher.Constraint("Equal", 0, 1),
    Sketcher.Constraint("Equal", 1, 2),
    Sketcher.Constraint("Equal", 2, 3),
    Sketcher.Constraint("Horizontal", 0, 3, 1, 3),
    Sketcher.Constraint("Horizontal", 2, 3, 3, 3),
    Sketcher.Constraint("Vertical", 1, 3, 2, 3),
    Sketcher.Constraint("Vertical", 0, 3, 3, 3),
    Sketcher.Constraint("Diameter", 0, 3.4),
    Sketcher.Constraint("DistanceX", 0, 3, -1, 1, 11.0),
    Sketcher.Constraint("DistanceX", -1, 1, 1, 3, 60.5),
    Sketcher.Constraint("DistanceY", 2, 3, 1, 3, 71.5),
    Sketcher.Constraint("DistanceY", -1, 1, 0, 3, 376.25),
])
doc.recompute()
hole2 = body.newObject("PartDesign::Hole", "Hole001")
hole2.Profile = sketch5
hole2.ThreadType = "None"
hole2.Diameter = 3.4
hole2.DepthType = "Dimension"
hole2.Depth = 10
hole2.DrillPoint = "Angled"
hole2.DrillPointAngle = 118
hole2.HoleCutType = "Countersink"
hole2.HoleCutDiameter = 6.3
hole2.HoleCutCountersinkAngle = 90

doc.recompute()
